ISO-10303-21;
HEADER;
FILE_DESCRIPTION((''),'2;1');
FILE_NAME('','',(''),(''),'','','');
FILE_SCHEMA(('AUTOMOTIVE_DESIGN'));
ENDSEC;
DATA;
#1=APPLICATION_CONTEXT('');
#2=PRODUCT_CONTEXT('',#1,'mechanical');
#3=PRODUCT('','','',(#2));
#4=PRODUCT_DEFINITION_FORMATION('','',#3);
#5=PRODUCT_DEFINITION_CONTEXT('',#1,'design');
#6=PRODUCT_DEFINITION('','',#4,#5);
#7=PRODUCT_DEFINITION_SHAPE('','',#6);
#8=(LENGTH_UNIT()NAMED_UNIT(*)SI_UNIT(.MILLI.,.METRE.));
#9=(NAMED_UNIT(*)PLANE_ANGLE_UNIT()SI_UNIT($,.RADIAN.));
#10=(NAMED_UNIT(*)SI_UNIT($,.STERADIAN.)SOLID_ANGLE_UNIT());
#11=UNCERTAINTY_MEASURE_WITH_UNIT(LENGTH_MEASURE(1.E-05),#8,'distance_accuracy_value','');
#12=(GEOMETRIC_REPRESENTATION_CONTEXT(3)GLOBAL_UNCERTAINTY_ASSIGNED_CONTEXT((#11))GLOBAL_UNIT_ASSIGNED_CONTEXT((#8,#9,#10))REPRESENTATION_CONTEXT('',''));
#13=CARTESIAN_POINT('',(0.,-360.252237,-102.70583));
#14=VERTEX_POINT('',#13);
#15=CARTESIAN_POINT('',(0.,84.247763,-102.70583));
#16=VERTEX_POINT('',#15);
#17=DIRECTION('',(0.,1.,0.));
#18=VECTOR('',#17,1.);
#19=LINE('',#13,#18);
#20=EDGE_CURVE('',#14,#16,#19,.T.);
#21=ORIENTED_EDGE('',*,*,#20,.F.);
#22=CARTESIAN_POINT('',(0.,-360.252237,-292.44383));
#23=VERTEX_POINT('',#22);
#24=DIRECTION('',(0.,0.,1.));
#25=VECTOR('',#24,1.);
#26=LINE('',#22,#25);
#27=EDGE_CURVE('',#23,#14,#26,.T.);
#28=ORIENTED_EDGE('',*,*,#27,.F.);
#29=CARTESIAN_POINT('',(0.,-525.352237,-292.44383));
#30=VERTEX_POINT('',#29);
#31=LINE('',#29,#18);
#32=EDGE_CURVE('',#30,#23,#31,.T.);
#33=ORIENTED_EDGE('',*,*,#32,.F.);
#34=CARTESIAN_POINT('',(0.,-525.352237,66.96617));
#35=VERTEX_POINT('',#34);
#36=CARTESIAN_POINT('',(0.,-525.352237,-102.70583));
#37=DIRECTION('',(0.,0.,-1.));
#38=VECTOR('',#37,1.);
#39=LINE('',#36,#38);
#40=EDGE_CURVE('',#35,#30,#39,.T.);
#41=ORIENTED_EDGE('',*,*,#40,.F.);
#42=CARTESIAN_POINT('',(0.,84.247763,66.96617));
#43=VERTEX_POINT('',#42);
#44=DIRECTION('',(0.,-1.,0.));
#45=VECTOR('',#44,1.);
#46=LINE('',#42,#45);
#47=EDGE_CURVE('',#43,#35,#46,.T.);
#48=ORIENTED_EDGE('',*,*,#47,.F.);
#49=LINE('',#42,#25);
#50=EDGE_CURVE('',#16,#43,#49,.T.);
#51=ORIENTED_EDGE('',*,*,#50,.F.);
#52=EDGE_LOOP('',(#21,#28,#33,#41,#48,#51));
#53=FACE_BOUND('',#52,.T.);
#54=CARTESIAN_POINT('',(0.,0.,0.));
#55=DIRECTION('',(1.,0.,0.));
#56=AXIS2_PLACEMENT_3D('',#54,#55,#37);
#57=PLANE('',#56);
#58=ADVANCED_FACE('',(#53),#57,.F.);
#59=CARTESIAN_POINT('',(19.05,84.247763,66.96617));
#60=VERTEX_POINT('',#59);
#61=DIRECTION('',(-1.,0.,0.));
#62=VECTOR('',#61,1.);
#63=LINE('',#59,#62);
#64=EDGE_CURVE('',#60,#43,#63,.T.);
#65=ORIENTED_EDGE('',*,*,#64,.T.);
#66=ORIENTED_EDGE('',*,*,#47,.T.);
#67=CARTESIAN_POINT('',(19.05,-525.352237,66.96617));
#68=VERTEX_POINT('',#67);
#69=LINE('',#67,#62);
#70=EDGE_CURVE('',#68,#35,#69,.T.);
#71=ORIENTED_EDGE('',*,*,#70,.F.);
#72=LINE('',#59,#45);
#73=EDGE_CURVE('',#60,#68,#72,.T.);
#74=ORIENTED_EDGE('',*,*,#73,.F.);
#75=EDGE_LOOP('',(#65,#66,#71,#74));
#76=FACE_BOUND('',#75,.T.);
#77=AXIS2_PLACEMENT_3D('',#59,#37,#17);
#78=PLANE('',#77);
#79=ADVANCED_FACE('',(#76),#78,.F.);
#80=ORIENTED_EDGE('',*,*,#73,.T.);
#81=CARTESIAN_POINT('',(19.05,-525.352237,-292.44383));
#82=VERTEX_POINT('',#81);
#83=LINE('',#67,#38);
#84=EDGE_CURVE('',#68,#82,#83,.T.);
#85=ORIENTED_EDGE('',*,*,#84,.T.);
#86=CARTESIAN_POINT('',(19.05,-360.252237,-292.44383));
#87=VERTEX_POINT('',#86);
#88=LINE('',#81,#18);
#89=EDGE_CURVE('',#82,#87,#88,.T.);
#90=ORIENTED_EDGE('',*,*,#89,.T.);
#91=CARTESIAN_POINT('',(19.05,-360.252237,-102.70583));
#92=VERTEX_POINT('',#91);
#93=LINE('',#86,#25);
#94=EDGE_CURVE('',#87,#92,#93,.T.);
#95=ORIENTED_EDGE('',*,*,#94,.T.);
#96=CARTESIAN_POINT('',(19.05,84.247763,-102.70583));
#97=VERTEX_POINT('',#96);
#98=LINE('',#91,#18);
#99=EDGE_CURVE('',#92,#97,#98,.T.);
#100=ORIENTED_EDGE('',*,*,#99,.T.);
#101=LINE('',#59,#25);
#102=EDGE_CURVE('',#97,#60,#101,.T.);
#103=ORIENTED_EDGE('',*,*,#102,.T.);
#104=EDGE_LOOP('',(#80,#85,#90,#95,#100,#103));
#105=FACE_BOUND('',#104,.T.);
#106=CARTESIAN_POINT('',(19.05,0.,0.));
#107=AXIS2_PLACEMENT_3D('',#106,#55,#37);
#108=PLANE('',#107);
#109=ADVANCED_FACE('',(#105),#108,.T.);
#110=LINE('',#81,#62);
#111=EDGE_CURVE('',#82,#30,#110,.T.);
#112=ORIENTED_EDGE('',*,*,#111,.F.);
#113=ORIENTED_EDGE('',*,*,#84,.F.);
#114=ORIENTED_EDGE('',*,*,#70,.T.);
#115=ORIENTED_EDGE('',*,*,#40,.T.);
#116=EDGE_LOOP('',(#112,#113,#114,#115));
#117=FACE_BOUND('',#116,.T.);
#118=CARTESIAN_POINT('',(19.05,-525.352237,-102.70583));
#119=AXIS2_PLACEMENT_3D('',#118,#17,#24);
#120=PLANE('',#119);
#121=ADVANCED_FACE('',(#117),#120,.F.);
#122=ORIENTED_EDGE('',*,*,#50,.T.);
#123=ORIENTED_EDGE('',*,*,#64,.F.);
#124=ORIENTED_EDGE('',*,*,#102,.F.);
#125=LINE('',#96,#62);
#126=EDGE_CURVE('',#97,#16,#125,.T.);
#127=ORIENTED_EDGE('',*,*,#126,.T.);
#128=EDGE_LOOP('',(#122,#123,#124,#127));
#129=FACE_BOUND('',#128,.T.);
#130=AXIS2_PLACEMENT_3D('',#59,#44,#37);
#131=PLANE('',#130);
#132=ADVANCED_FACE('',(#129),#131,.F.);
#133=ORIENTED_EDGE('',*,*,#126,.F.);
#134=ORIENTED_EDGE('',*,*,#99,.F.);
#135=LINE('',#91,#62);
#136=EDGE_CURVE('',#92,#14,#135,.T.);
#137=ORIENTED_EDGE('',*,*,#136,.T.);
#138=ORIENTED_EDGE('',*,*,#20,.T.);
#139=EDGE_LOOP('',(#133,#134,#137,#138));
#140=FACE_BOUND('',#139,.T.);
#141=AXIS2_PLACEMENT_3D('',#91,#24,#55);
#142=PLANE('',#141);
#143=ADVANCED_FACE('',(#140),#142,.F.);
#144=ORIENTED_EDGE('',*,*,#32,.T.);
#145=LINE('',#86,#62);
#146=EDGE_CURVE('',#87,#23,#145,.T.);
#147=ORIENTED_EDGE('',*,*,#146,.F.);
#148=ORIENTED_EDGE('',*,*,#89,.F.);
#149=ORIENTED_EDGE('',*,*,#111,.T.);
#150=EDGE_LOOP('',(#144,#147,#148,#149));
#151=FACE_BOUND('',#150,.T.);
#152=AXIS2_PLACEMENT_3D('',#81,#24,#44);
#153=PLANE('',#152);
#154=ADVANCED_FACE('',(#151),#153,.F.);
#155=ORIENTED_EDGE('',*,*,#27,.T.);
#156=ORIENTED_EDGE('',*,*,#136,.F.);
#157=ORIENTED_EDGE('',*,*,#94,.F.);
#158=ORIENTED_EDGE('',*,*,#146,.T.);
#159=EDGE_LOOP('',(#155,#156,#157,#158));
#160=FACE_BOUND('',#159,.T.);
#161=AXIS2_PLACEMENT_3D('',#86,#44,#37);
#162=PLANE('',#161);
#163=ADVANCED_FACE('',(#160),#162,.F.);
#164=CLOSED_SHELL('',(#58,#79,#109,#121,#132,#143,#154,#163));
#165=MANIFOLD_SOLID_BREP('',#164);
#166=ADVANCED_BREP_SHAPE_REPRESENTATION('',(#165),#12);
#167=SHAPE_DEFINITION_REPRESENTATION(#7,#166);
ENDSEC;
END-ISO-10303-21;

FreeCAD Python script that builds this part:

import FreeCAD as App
import Part
import Sketcher
Q = App.Units.Quantity

doc = App.newDocument("Part")
body = doc.addObject("PartDesign::Body", "Body")

# Sketch on YZ plane
sketch1 = body.newObject("Sketcher::SketchObject", "Sketch")
sketch1.AttachmentSupport = (doc.getObject("YZ_Plane"), [""])
sketch1.MapMode = "FlatFace"
sketch1.addGeometry([
    Part.LineSegment(App.Vector(-525, -292, 0), App.Vector(-360, -292, 0)),  # 0
    Part.LineSegment(App.Vector(-360, -292, 0), App.Vector(-360, -103, 0)),  # 1
    Part.LineSegment(App.Vector(-360, -103, 0), App.Vector(84, -103, 0)),  # 2
    Part.LineSegment(App.Vector(84, -103, 0), App.Vector(84, 67, 0)),  # 3
    Part.LineSegment(App.Vector(84, 67, 0), App.Vector(-525, 67, 0)),  # 4
    Part.LineSegment(App.Vector(-525, 67, 0), App.Vector(-525, -292, 0)),  # 5
], False)
sketch1.addConstraint([
    Sketcher.Constraint("Coincident", 0, 2, 1, 1),
    Sketcher.Constraint("Coincident", 1, 2, 2, 1),
    Sketcher.Constraint("Coincident", 2, 2, 3, 1),
    Sketcher.Constraint("Coincident", 3, 2, 4, 1),
    Sketcher.Constraint("Coincident", 4, 2, 5, 1),
    Sketcher.Constraint("Coincident", 5, 2, 0, 1),
    Sketcher.Constraint("Horizontal", 0),
    Sketcher.Constraint("Vertical", 1),
    Sketcher.Constraint("Horizontal", 2),
    Sketcher.Constraint("Vertical", 3),
    Sketcher.Constraint("Horizontal", 4),
    Sketcher.Constraint("Vertical", 5),
    Sketcher.Constraint("DistanceX", 4, 2, 4, 1, Q("24 in")),
    Sketcher.Constraint("DistanceX", 0, 1, 0, 2, Q("6.5 in")),
    Sketcher.Constraint("DistanceY", 1, 1, 1, 2, Q("7.47 in")),
    Sketcher.Constraint("DistanceY", 3, 1, 3, 2, Q("6.68 in")),
    Sketcher.Constraint("DistanceY", 0, 2, -1, 1, 292.44383),
    Sketcher.Constraint("DistanceX", 0, 2, -1, 1, 360.252237),
])
pad1 = body.newObject("PartDesign::Pad", "Pad")
pad1.Profile = sketch1
pad1.Length = Q("0.75 in")

doc.recompute()
